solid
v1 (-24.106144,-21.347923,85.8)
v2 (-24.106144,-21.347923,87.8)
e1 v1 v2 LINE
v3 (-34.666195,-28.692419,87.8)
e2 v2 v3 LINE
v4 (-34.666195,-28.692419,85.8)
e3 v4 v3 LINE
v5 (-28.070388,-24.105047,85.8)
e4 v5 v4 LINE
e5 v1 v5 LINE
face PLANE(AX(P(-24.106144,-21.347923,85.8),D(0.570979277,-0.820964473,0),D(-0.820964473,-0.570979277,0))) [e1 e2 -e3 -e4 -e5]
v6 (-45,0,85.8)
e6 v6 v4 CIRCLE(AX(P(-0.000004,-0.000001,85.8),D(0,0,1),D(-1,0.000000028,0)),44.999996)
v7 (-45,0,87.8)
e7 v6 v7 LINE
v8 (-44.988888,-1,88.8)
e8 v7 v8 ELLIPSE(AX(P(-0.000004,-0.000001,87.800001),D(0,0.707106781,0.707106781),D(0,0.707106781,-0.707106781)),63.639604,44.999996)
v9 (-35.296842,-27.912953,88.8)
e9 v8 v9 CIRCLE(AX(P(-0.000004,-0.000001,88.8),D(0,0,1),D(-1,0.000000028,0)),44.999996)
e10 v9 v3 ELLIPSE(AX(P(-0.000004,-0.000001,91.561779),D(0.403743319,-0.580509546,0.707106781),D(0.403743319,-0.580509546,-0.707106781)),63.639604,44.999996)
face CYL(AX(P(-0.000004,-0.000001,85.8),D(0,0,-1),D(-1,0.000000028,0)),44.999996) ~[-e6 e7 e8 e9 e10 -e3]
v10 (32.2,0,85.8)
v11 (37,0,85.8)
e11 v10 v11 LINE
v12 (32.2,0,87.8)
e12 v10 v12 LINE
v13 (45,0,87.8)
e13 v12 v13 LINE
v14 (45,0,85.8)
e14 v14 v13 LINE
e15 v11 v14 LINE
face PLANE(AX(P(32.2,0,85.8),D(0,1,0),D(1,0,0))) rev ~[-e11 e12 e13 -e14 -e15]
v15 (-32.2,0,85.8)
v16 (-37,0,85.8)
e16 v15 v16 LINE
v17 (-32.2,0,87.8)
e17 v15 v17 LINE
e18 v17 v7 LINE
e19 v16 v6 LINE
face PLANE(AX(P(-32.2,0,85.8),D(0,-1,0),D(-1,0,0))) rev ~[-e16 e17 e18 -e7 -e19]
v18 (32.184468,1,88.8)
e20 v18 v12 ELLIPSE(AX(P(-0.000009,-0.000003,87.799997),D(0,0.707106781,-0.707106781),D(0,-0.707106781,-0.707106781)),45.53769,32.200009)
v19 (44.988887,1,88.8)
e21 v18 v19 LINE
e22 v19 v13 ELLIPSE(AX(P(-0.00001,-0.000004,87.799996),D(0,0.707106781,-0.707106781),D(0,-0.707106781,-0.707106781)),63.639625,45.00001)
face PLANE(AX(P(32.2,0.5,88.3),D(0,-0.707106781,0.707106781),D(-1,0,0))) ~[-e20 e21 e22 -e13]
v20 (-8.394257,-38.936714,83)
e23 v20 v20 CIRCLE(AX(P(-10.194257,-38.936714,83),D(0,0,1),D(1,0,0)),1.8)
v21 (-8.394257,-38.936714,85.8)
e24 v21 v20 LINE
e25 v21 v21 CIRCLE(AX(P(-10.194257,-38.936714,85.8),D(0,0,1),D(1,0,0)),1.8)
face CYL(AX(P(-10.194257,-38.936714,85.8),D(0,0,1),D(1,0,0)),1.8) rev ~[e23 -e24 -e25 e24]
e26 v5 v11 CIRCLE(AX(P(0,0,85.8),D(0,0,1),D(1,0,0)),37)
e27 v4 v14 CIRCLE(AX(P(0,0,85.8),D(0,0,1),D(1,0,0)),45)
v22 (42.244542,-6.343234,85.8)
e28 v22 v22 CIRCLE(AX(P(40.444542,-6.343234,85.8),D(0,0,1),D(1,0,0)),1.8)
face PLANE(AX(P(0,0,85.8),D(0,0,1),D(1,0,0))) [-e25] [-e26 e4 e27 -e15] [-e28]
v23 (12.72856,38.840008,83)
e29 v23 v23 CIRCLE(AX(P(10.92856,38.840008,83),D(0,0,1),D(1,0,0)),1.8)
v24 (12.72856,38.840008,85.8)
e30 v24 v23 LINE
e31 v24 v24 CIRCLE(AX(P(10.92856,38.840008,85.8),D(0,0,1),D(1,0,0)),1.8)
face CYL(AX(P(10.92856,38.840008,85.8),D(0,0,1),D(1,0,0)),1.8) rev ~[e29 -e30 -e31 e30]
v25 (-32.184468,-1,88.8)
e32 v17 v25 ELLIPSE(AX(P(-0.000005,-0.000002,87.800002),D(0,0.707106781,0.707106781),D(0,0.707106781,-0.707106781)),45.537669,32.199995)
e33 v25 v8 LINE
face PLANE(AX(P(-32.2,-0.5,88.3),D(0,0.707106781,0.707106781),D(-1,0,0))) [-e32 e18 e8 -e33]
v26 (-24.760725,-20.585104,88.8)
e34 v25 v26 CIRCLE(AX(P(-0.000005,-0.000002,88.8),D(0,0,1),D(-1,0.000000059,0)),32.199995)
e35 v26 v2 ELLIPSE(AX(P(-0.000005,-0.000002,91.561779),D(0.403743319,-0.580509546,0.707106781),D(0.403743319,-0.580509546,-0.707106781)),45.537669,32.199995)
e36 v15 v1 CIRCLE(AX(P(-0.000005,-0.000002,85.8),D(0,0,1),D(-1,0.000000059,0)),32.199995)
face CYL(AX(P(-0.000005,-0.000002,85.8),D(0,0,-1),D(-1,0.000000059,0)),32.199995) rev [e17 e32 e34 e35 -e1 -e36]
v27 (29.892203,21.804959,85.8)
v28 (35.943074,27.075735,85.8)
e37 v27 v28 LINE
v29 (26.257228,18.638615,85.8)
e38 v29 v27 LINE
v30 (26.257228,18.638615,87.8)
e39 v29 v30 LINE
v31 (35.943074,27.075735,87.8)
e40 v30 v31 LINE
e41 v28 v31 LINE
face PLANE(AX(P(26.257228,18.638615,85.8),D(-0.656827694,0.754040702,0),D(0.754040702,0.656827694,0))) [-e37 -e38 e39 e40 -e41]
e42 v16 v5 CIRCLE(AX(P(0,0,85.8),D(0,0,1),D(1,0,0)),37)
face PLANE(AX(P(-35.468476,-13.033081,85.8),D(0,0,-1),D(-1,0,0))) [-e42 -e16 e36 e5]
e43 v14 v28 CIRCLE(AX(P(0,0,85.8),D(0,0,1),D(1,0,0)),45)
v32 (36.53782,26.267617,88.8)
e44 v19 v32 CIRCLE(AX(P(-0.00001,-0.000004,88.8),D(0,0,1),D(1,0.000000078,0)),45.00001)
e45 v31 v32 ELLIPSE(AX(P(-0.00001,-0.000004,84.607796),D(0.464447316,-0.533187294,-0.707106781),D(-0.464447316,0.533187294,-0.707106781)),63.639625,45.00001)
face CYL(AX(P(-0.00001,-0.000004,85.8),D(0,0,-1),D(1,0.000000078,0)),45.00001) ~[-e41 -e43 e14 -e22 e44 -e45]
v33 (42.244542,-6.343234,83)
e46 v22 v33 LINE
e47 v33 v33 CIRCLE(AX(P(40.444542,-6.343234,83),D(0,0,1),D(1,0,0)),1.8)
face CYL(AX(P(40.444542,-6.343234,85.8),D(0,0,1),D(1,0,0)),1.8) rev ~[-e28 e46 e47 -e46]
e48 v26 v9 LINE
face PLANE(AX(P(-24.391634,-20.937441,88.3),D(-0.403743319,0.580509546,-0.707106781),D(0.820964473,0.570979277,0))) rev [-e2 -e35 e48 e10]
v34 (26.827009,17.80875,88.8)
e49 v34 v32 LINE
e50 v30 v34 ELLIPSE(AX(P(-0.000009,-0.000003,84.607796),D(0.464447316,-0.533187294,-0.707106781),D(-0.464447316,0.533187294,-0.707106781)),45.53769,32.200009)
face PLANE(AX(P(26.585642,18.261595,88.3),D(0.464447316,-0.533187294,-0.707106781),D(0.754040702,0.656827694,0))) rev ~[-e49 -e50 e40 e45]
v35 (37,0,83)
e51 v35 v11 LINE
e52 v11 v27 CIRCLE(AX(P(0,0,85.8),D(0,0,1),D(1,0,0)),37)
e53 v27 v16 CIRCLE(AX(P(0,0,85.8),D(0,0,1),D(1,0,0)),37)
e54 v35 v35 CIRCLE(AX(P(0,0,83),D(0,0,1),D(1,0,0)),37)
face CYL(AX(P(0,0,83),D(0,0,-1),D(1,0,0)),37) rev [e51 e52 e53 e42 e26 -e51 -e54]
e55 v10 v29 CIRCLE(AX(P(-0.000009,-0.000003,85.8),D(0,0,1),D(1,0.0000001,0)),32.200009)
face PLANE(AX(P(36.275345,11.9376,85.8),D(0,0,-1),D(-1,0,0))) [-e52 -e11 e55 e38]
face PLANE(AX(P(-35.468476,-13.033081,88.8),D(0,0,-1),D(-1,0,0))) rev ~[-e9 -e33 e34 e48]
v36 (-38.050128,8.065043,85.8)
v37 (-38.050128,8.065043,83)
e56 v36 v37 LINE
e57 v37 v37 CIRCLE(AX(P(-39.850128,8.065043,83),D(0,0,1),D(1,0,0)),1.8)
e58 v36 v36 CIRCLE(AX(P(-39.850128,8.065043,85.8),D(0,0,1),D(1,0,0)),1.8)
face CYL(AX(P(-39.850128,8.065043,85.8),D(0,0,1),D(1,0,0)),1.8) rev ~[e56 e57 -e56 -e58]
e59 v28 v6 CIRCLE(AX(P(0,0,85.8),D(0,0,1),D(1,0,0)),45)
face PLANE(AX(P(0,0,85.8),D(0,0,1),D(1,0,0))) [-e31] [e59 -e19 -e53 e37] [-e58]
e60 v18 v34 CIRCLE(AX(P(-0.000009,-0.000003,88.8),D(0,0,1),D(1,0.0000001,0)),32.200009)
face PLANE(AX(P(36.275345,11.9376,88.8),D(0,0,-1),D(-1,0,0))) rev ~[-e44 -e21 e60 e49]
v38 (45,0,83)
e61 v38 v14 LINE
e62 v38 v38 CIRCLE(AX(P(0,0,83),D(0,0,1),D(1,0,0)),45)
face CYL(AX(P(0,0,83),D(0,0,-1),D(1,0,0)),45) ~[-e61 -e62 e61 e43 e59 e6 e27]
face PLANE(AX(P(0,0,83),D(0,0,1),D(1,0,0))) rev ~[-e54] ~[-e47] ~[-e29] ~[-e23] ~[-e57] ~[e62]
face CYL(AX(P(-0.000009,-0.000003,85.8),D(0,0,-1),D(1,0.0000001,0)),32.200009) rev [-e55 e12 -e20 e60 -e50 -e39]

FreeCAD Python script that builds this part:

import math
import FreeCAD as App
import Part
import Sketcher
from FreeCAD import Vector
Q = App.Units.Quantity


def edges_at(feature, points):
    """Names of the edges that pass closest to the given points."""
    edges = feature.Shape.Edges
    near = lambda p: min(range(len(edges)), key=lambda i: edges[i].distToShape(Part.Vertex(*p))[0])
    return sorted({f"Edge{near(p) + 1}" for p in points})

doc = App.newDocument("Part")
params = doc.addObject("Spreadsheet::Sheet", "Params")
for row, (alias, value) in enumerate([
    ("sketch1_diameter", "74 mm"),
    ("pad1_length", "2.8 mm"),
    ("sketch2_diameter", "90 mm"),
    ("pad2_length", "2.8 mm"),
    ("sketch3_diameter", "3.6 mm"),
    ("pocket1_length", "5 mm"),
    ("sketch4_width", "12.8 mm"),
    ("pad3_length", "3 mm"),
    ("chamfer_size", "1 mm"),
    ("chamfer2_size", "1 mm"),
    ("chamfer3_size", "1 mm"),
    ("chamfer4_size", "1 mm"),
], start=1):
    params.set(f"A{row}", alias)
    params.set(f"B{row}", "=" + value)
    params.setAlias(f"B{row}", alias)

body = doc.addObject("PartDesign::Body", "Body")

# Sketch on XY plane
sketch1 = body.newObject("Sketcher::SketchObject", "Sketch")
sketch1.AttachmentSupport = (doc.getObject("XY_Plane"), [""])
sketch1.MapMode = "FlatFace"
sketch1.AttachmentOffset = App.Placement(Vector(0, 0, 83), App.Rotation())
sketch1.addGeometry(Part.Circle(Vector(0, 0, 0), Vector(0, 0, 1), 37), False)
sketch1.addConstraint([
    Sketcher.Constraint("Coincident", 0, 3, -1, 1),
    Sketcher.Constraint("Diameter", 0, Q("74 mm")),
])
sketch1.setExpression("Constraints[1]", "Params.sketch1_diameter")
pad1 = body.newObject("PartDesign::Pad", "Pad")
pad1.Profile = sketch1
pad1.setExpression("Length", "Params.pad1_length")
body2 = doc.addObject("PartDesign::Body", "Body001")

# Sketch on XY plane
sketch2 = body2.newObject("Sketcher::SketchObject", "Sketch001")
sketch2.AttachmentSupport = (doc.getObject("XY_Plane001"), [""])
sketch2.MapMode = "FlatFace"
sketch2.AttachmentOffset = App.Placement(Vector(0, 0, 83), App.Rotation())
sketch2.addGeometry(Part.Circle(Vector(0, 0, 0), Vector(0, 0, 1), 45), False)
sketch2.addConstraint([
    Sketcher.Constraint("Coincident", 0, 3, -1, 1),
    Sketcher.Constraint("Diameter", 0, Q("90 mm")),
])
sketch2.setExpression("Constraints[1]", "Params.sketch2_diameter")
pad2 = body2.newObject("PartDesign::Pad", "Pad001")
pad2.Profile = sketch2
pad2.setExpression("Length", "Params.pad2_length")
doc.recompute()

boolean = body2.newObject("PartDesign::Boolean", "Boolean")
boolean.Type = "Cut"
boolean.addObjects([body])

# Sketch on XY plane
sketch3 = body2.newObject("Sketcher::SketchObject", "Sketch002")
sketch3.AttachmentSupport = (doc.getObject("XY_Plane001"), [""])
sketch3.MapMode = "FlatFace"
sketch3.AttachmentOffset = App.Placement(Vector(0, 0, 85.8), App.Rotation())
sketch3.addGeometry([
    Part.Circle(Vector(10.9, 38.8, 0), Vector(0, 0, 1), 1.8),
    Part.Circle(Vector(40.4, -6.3, 0), Vector(0, 0, 1), 1.8),
    Part.Circle(Vector(-10.2, -38.9, 0), Vector(0, 0, 1), 1.8),
    Part.Circle(Vector(-39.9, 8.1, 0), Vector(0, 0, 1), 1.8),
], False)
sketch3.addConstraint([
    Sketcher.Constraint("Equal", 0, 1),
    Sketcher.Constraint("Equal", 1, 2),
    Sketcher.Constraint("Equal", 2, 3),
    Sketcher.Constraint("Diameter", 0, Q("3.6 mm")),
    Sketcher.Constraint("DistanceX", 2, 3, 1, 3, Q("50.638799 mm")),
    Sketcher.Constraint("DistanceX", -1, 1, 0, 3, Q("10.92856 mm")),
    Sketcher.Constraint("DistanceX", -1, 1, 1, 3, Q("40.444542 mm")),
    Sketcher.Constraint("DistanceY", 2, 3, 1, 3, Q("32.59348 mm")),
    Sketcher.Constraint("DistanceX", 3, 3, 2, 3, Q("29.655871 mm")),
    Sketcher.Constraint("DistanceY", -1, 1, 0, 3, Q("38.840008 mm")),
    Sketcher.Constraint("DistanceY", 1, 3, -1, 1, Q("6.343234 mm")),
    Sketcher.Constraint("DistanceY", -1, 1, 3, 3, Q("8.065043 mm")),
])
sketch3.setExpression("Constraints[3]", "Params.sketch3_diameter")
pocket1 = body2.newObject("PartDesign::Pocket", "Pocket")
pocket1.Profile = sketch3
pocket1.setExpression("Length", "Params.pocket1_length")

# Sketch on XY plane
sketch4 = body2.newObject("Sketcher::SketchObject", "Sketch003")
sketch4.AttachmentSupport = (doc.getObject("XY_Plane001"), [""])
sketch4.MapMode = "FlatFace"
sketch4.AttachmentOffset = App.Placement(Vector(0, 0, 85.8), App.Rotation())
sketch4.addGeometry([
    Part.ArcOfCircle(Part.Circle(Vector(0, 0, 0), Vector(0, 0, 1), 32), math.radians(0), math.radians(35)),  # 0
    Part.LineSegment(Vector(32, 0, 0), Vector(45, 0, 0)),  # 1
    Part.ArcOfCircle(Part.Circle(Vector(0, 0, 0), Vector(0, 0, 1), 45), math.radians(0), math.radians(37)),  # 2
    Part.LineSegment(Vector(36, 27, 0), Vector(26, 19, 0)),  # 3
    Part.ArcOfCircle(Part.Circle(Vector(0, 0, 0), Vector(0, 0, 1), 32), math.radians(180), math.radians(222)),  # 4
    Part.LineSegment(Vector(-32, 0, 0), Vector(-45, 0, 0)),  # 5
    Part.ArcOfCircle(Part.Circle(Vector(0, 0, 0), Vector(0, 0, 1), 45), math.radians(180), math.radians(220)),  # 6
    Part.LineSegment(Vector(-35, -29, 0), Vector(-24, -21, 0)),  # 7
], False)
sketch4.addConstraint([
    Sketcher.Constraint("Coincident", 0, 1, 1, 1),
    Sketcher.Constraint("Coincident", 1, 2, 2, 1),
    Sketcher.Constraint("Coincident", 2, 2, 3, 1),
    Sketcher.Constraint("Coincident", 3, 2, 0, 2),
    Sketcher.Constraint("Coincident", 4, 1, 5, 1),
    Sketcher.Constraint("Coincident", 5, 2, 6, 1),
    Sketcher.Constraint("Coincident", 6, 2, 7, 1),
    Sketcher.Constraint("Coincident", 7, 2, 4, 2),
    Sketcher.Constraint("Horizontal", 1),
    Sketcher.Constraint("Horizontal", 5),
    Sketcher.Constraint("Coincident", 0, 3, -1, 1),
    Sketcher.Constraint("Coincident", 4, 3, -1, 1),
    Sketcher.Constraint("Coincident", 6, 3, -1, 1),
    Sketcher.Constraint("Coincident", 2, 3, 0, 3),
    Sketcher.Constraint("Symmetric", 0, 1, 4, 1, -1, 1),
    Sketcher.Constraint("Symmetric", 1, 2, 5, 2, -2),
    Sketcher.Constraint("DistanceX", 1, 1, 1, 2, Q("12.8 mm")),
    Sketcher.Constraint("DistanceX", -1, 1, 1, 2, Q("45 mm")),
    Sketcher.Constraint("Distance", 7, Q("12.862982 mm")),
    Sketcher.Constraint("DistanceX", -1, 1, 3, 2, Q("26.257228 mm")),
    Sketcher.Constraint("DistanceY", 6, 2, -1, 1, Q("28.692419 mm")),
    Sketcher.Constraint("DistanceX", 6, 3, 2, 2, Q("35.943078 mm")),
])
sketch4.setExpression("Constraints[16]", "Params.sketch4_width")
pad3 = body2.newObject("PartDesign::Pad", "Pad002")
pad3.Profile = sketch4
pad3.setExpression("Length", "Params.pad3_length")
doc.recompute()

chamfer = body2.newObject("PartDesign::Chamfer", "Chamfer")
chamfer.Base = (pad3, edges_at(pad3, [(-38.6, 0, 88.8)]))
chamfer.setExpression("Size", "Params.chamfer_size")
doc.recompute()

chamfer2 = body2.newObject("PartDesign::Chamfer", "Chamfer001")
chamfer2.Base = (chamfer, edges_at(chamfer, [(-29.386, -25.02, 88.8)]))
chamfer2.setExpression("Size", "Params.chamfer2_size")
doc.recompute()

chamfer3 = body2.newObject("PartDesign::Chamfer", "Chamfer002")
chamfer3.Base = (chamfer2, edges_at(chamfer2, [(31.1, 22.857, 88.8)]))
chamfer3.setExpression("Size", "Params.chamfer3_size")
doc.recompute()

chamfer4 = body2.newObject("PartDesign::Chamfer", "Chamfer003")
chamfer4.Base = (chamfer3, edges_at(chamfer3, [(38.6, 0, 88.8)]))
chamfer4.setExpression("Size", "Params.chamfer4_size")

doc.recompute()
